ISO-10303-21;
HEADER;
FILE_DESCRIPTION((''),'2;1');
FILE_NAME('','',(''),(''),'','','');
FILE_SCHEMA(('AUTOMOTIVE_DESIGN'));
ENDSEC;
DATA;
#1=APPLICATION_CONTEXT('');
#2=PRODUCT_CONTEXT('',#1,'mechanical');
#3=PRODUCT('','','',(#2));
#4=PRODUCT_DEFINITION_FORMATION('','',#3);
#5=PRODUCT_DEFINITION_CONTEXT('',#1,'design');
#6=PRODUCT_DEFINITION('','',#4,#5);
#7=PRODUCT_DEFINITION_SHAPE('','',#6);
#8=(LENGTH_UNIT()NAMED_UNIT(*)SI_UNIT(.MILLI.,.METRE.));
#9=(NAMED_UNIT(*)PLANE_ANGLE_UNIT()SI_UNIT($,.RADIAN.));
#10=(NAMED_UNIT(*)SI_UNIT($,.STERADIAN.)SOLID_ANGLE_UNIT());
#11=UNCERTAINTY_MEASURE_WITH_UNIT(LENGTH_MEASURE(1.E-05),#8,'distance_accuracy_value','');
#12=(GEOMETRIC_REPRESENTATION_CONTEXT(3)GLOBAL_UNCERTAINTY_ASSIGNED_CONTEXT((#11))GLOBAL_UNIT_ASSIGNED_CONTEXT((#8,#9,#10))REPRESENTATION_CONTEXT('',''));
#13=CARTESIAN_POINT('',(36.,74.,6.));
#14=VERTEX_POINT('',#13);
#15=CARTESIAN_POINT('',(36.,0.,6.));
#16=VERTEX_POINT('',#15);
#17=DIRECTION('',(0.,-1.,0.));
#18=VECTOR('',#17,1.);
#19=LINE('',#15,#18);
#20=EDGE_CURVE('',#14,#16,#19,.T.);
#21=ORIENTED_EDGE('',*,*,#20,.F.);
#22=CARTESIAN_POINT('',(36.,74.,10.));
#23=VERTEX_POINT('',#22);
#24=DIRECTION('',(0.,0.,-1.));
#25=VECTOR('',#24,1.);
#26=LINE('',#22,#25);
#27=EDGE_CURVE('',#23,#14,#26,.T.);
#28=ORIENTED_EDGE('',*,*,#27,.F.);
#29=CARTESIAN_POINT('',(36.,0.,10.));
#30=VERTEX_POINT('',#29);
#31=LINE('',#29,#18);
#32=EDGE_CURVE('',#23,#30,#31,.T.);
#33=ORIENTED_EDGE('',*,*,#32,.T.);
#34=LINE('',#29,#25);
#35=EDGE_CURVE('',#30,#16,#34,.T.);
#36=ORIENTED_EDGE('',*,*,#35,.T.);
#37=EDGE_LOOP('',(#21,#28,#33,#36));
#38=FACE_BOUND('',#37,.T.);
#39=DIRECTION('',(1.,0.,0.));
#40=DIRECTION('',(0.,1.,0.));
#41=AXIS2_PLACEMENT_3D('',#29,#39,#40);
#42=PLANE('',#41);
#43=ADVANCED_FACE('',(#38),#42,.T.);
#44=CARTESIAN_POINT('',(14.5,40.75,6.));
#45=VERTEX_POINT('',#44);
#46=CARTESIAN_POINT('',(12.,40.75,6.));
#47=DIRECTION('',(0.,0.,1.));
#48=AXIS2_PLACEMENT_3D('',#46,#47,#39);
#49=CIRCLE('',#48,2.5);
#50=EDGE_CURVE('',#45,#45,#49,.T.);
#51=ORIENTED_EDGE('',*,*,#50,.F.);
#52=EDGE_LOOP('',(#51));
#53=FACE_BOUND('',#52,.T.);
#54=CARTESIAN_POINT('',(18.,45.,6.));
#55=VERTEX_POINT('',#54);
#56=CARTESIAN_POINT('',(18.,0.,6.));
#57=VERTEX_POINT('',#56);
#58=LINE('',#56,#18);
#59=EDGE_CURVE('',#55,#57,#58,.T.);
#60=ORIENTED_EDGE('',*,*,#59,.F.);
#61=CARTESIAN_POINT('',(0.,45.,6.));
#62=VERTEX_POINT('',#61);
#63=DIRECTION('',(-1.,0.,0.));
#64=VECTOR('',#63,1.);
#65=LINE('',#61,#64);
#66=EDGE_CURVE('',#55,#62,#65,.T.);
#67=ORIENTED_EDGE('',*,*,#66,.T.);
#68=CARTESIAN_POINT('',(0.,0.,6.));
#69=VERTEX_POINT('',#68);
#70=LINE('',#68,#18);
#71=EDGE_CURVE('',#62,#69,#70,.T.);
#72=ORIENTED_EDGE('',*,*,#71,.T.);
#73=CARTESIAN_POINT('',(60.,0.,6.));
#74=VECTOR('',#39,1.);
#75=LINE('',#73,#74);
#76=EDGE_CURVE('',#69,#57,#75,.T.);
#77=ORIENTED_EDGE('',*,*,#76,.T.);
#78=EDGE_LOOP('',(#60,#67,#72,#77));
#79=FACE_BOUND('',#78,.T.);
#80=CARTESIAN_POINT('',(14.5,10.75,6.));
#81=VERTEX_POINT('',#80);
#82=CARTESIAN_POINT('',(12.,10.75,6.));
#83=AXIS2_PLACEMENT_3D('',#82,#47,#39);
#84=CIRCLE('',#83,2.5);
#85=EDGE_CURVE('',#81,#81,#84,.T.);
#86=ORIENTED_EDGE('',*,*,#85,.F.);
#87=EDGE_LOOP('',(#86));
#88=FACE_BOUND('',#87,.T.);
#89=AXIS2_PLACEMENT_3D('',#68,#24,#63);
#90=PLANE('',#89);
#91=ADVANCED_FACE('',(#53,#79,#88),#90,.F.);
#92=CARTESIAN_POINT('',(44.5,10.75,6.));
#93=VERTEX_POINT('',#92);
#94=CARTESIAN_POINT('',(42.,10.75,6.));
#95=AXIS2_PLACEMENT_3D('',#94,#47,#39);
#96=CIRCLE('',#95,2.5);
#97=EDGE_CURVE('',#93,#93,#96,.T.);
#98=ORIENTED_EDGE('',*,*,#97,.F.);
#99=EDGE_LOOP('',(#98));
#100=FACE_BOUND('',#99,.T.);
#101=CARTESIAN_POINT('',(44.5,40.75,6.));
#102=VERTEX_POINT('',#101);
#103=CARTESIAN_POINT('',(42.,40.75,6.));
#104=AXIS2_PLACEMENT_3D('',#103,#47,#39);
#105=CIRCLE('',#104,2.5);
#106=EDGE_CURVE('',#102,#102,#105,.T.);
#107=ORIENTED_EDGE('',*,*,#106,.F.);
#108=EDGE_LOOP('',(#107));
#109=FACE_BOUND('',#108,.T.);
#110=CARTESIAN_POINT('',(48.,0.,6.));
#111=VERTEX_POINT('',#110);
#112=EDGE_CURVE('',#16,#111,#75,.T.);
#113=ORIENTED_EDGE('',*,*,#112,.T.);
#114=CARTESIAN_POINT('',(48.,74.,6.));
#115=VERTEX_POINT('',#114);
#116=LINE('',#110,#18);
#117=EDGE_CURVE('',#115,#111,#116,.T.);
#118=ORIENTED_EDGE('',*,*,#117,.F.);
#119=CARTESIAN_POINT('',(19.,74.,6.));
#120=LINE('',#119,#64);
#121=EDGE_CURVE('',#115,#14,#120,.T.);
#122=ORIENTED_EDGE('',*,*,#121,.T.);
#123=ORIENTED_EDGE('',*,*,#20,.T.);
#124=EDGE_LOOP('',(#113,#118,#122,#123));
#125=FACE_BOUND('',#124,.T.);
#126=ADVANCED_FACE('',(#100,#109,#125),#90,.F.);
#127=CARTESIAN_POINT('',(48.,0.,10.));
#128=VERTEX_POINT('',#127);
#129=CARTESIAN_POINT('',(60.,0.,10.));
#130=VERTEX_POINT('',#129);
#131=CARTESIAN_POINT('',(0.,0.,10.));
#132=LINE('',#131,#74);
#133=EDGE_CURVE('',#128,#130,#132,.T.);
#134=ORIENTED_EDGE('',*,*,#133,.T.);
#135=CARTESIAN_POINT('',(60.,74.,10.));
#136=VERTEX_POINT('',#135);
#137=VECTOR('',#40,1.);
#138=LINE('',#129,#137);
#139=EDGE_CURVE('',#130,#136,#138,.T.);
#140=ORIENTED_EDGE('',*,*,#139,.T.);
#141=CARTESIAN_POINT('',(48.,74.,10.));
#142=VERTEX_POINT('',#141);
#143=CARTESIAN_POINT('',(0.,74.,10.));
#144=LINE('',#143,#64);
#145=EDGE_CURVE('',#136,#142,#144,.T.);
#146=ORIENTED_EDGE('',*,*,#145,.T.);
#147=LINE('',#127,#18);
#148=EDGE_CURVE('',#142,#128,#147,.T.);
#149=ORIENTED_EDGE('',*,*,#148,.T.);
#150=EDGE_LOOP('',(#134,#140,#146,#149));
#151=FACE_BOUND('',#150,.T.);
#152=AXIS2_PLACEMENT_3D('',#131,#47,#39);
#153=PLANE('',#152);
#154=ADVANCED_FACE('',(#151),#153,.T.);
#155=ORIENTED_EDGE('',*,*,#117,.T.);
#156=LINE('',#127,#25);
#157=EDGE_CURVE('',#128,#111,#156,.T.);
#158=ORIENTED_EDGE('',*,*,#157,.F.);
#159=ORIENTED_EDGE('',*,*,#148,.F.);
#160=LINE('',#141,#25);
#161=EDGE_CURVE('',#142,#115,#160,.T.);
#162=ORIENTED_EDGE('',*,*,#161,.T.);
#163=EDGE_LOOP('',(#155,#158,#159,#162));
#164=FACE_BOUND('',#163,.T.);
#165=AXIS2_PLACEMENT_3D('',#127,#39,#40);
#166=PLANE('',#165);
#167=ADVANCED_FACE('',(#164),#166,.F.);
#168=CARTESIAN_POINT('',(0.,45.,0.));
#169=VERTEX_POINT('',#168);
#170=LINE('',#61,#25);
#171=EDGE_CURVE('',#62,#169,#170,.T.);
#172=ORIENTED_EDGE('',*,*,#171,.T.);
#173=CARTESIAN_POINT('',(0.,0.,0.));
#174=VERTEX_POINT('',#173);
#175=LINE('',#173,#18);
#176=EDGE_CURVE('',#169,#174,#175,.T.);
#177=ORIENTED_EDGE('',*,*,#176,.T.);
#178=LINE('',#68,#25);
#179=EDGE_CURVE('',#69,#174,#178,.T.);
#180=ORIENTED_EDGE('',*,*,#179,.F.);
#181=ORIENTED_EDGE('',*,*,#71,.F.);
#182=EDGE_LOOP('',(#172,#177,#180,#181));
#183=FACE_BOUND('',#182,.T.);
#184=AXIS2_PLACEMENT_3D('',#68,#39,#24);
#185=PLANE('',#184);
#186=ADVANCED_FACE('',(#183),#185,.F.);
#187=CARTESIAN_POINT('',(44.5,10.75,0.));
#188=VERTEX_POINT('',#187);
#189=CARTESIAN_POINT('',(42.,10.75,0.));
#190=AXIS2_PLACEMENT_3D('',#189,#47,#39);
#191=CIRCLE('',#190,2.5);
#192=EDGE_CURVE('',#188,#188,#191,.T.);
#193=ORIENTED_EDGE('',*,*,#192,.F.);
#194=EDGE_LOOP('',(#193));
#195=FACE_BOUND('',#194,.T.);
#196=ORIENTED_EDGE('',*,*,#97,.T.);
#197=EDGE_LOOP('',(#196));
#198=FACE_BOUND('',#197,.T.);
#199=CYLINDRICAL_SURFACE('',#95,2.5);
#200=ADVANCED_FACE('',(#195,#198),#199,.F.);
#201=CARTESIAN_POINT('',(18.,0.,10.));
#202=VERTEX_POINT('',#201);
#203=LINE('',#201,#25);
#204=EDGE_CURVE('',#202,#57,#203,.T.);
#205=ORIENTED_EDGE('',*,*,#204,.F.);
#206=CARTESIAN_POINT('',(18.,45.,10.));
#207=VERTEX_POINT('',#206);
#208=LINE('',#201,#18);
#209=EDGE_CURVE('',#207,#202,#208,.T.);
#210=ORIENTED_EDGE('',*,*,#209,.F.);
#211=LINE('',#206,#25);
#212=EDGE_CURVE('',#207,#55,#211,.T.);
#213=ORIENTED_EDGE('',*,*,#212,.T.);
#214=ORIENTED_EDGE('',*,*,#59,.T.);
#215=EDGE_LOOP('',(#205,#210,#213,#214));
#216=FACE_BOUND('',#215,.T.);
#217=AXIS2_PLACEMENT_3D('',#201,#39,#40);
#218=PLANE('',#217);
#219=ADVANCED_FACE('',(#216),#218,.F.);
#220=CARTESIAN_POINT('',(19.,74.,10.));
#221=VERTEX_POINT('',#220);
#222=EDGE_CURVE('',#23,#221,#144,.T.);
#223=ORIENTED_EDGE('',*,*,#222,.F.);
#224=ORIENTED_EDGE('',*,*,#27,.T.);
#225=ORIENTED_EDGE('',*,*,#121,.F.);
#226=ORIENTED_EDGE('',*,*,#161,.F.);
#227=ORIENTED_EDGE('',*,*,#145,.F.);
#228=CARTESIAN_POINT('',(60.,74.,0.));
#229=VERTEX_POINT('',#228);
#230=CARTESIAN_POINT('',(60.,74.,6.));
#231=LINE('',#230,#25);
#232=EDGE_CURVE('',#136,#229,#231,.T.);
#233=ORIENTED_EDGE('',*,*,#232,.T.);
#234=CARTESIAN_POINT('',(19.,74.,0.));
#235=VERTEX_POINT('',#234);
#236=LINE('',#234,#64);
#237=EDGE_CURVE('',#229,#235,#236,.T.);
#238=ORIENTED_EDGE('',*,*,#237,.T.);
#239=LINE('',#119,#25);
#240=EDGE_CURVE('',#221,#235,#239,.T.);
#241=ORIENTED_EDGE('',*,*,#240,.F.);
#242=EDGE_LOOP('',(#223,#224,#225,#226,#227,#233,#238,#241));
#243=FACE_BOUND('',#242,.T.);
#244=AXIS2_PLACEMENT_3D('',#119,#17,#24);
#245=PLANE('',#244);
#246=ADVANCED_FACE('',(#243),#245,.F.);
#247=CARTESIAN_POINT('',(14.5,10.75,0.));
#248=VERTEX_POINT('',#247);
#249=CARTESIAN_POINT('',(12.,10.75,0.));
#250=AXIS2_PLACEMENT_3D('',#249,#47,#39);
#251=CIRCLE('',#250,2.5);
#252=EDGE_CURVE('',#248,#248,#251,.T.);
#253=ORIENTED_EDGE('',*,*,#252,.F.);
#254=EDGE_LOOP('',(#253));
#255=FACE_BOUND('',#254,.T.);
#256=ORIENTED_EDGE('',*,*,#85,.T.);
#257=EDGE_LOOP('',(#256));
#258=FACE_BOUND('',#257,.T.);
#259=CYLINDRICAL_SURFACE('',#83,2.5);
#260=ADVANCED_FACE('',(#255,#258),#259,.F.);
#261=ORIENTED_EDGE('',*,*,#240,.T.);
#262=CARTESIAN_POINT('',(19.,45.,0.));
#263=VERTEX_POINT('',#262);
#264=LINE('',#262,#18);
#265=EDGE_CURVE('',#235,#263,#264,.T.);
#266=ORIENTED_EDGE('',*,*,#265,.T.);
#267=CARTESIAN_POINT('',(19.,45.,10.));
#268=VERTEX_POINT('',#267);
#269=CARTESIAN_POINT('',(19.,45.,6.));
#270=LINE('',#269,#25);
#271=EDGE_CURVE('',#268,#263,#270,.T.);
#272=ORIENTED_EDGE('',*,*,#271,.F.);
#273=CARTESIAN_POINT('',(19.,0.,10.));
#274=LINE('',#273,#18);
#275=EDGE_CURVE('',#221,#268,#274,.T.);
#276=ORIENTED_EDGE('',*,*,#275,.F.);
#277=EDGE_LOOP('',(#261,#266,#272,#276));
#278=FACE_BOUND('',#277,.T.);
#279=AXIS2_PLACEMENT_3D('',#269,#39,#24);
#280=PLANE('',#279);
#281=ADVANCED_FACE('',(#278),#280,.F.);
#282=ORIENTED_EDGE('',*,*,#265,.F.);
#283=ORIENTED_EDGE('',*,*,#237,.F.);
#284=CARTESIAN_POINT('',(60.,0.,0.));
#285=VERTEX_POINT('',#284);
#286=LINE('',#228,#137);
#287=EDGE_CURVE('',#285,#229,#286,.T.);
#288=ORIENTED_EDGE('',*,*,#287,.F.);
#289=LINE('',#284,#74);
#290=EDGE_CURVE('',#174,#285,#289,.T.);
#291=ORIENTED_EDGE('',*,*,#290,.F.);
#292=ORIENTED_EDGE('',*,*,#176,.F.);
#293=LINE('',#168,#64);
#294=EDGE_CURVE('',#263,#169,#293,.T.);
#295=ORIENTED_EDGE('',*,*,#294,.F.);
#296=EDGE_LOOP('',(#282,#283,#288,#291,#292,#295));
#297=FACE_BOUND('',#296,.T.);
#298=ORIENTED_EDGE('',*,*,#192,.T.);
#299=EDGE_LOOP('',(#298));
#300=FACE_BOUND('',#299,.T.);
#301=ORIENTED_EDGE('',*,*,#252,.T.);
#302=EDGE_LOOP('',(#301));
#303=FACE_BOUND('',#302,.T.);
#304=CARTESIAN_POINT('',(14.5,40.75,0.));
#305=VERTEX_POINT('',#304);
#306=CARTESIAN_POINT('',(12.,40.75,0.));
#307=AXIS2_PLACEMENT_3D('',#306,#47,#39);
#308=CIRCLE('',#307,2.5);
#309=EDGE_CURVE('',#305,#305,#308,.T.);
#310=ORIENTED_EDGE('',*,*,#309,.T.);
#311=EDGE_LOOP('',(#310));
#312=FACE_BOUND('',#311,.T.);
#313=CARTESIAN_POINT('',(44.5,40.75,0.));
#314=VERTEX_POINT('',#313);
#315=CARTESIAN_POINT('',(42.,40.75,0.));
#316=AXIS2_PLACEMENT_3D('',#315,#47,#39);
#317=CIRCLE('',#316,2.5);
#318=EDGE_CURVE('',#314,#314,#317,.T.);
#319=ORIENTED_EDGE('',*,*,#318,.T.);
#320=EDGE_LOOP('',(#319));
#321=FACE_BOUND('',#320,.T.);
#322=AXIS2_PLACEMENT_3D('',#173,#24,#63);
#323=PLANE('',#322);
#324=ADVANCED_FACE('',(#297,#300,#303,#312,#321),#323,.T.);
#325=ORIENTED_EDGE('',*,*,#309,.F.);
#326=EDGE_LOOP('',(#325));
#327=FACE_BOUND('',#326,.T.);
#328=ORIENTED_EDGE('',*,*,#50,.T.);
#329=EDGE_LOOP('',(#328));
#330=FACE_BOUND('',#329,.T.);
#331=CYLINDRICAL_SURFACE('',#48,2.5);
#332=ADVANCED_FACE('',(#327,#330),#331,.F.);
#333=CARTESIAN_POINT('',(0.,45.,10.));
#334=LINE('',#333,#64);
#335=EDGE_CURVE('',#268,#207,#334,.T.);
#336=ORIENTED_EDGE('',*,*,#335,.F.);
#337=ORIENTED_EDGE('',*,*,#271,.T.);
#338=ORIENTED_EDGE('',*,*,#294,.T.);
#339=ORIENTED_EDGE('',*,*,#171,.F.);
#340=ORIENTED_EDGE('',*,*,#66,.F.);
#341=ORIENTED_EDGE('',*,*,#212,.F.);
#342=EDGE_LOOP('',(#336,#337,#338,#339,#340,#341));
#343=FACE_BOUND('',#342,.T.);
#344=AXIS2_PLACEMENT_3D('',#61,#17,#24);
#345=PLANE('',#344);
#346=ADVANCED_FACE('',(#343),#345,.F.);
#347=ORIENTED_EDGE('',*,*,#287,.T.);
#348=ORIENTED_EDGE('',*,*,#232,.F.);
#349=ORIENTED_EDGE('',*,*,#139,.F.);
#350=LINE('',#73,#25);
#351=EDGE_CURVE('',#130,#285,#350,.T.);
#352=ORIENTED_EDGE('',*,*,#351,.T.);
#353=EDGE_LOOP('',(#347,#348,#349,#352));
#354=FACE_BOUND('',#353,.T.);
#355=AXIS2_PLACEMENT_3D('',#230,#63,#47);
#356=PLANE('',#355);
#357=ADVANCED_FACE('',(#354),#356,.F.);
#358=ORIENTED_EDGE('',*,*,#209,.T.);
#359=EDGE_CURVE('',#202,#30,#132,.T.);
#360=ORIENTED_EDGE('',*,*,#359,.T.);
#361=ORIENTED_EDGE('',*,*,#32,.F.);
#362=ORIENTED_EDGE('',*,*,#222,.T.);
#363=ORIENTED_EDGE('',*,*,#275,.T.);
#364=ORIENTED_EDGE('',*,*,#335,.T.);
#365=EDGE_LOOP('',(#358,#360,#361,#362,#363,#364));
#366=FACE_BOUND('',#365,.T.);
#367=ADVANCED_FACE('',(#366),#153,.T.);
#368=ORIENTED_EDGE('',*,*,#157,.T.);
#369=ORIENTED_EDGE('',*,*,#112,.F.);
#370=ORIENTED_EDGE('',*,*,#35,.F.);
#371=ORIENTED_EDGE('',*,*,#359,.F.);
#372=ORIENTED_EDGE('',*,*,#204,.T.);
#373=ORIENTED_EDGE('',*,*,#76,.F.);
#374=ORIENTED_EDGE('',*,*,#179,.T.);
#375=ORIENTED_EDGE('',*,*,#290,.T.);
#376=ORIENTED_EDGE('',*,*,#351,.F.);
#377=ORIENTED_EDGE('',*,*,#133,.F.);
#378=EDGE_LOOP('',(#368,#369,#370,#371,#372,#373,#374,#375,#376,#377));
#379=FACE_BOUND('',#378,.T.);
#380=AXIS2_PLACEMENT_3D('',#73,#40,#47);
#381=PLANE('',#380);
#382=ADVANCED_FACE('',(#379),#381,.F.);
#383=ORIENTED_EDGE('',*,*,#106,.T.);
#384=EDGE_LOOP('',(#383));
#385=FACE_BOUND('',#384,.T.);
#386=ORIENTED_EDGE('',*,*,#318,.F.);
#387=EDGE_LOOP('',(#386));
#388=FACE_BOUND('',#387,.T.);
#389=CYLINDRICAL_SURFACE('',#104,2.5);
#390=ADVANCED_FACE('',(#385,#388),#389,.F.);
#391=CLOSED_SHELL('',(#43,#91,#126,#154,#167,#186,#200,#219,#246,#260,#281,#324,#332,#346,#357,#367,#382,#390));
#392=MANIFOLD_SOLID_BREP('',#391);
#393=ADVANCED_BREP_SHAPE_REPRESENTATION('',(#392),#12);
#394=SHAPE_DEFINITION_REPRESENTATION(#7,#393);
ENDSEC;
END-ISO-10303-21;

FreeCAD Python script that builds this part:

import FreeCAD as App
import Part
import Sketcher
Q = App.Units.Quantity

doc = App.newDocument("Part")
body = doc.addObject("PartDesign::Body", "Body")

sketch1 = doc.addObject("Sketcher::SketchObject", "Sketch")
body.addObject(sketch1)
sketch1.AttachmentSupport = (doc.XY_Plane, [""])
sketch1.MapMode = "FlatFace"
sketch1.addGeometry([
    Part.LineSegment(App.Vector(0, 45, 0), App.Vector(0, 0, 0)),
    Part.LineSegment(App.Vector(0, 0, 0), App.Vector(60, 0, 0)),
    Part.LineSegment(App.Vector(60, 0, 0), App.Vector(60, 74, 0)),
    Part.LineSegment(App.Vector(60, 74, 0), App.Vector(19, 74, 0)),
    Part.LineSegment(App.Vector(19, 74, 0), App.Vector(19, 45, 0)),
    Part.LineSegment(App.Vector(19, 45, 0), App.Vector(0, 45, 0)),
], False)
sketch1.addConstraint([
    Sketcher.Constraint("Coincident", 0, 2, 1, 1),
    Sketcher.Constraint("Coincident", 1, 2, 2, 1),
    Sketcher.Constraint("Coincident", 2, 2, 3, 1),
    Sketcher.Constraint("Coincident", 3, 2, 4, 1),
    Sketcher.Constraint("Coincident", 4, 2, 5, 1),
    Sketcher.Constraint("Coincident", 5, 2, 0, 1),
    Sketcher.Constraint("Vertical", 0),
    Sketcher.Constraint("Horizontal", 1),
    Sketcher.Constraint("Vertical", 2),
    Sketcher.Constraint("Horizontal", 3),
    Sketcher.Constraint("Vertical", 4),
    Sketcher.Constraint("Horizontal", 5),
    Sketcher.Constraint("Coincident", 0, 2, -1, 1),
    Sketcher.Constraint("DistanceX", 1, 1, 1, 2, Q("60 mm")),
    Sketcher.Constraint("DistanceX", 3, 2, 3, 1, Q("41 mm")),
    Sketcher.Constraint("DistanceY", 0, 2, 0, 1, Q("45 mm")),
    Sketcher.Constraint("DistanceY", 2, 1, 2, 2, Q("74 mm")),
])
pad1 = doc.addObject("PartDesign::Pad", "Pad")
body.addObject(pad1)
pad1.Profile = sketch1
pad1.Length = 6

sketch2 = doc.addObject("Sketcher::SketchObject", "Sketch001")
body.addObject(sketch2)
sketch2.AttachmentSupport = (doc.XY_Plane, [""])
sketch2.MapMode = "FlatFace"
sketch2.AttachmentOffset = App.Placement(App.Vector(0, 0, 6), App.Rotation())
sketch2.addGeometry([
    Part.LineSegment(App.Vector(36, 0, 0), App.Vector(36, 74, 0)),
    Part.LineSegment(App.Vector(36, 74, 0), App.Vector(19, 74, 0)),
    Part.LineSegment(App.Vector(19, 74, 0), App.Vector(19, 45, 0)),
    Part.LineSegment(App.Vector(19, 45, 0), App.Vector(18, 45, 0)),
    Part.LineSegment(App.Vector(18, 45, 0), App.Vector(18, 0, 0)),
    Part.LineSegment(App.Vector(18, 0, 0), App.Vector(36, 0, 0)),
    Part.LineSegment(App.Vector(48, 74, 0), App.Vector(48, 0, 0)),
    Part.LineSegment(App.Vector(48, 0, 0), App.Vector(60, 0, 0)),
    Part.LineSegment(App.Vector(60, 0, 0), App.Vector(60, 74, 0)),
    Part.LineSegment(App.Vector(60, 74, 0), App.Vector(48, 74, 0)),
], False)
sketch2.addConstraint([
    Sketcher.Constraint("Coincident", 0, 2, 1, 1),
    Sketcher.Constraint("Coincident", 1, 2, 2, 1),
    Sketcher.Constraint("Coincident", 2, 2, 3, 1),
    Sketcher.Constraint("Coincident", 3, 2, 4, 1),
    Sketcher.Constraint("Coincident", 4, 2, 5, 1),
    Sketcher.Constraint("Coincident", 5, 2, 0, 1),
    Sketcher.Constraint("Coincident", 6, 2, 7, 1),
    Sketcher.Constraint("Coincident", 7, 2, 8, 1),
    Sketcher.Constraint("Coincident", 8, 2, 9, 1),
    Sketcher.Constraint("Coincident", 9, 2, 6, 1),
    Sketcher.Constraint("Vertical", 0),
    Sketcher.Constraint("Horizontal", 1),
    Sketcher.Constraint("Vertical", 2),
    Sketcher.Constraint("Horizontal", 3),
    Sketcher.Constraint("Vertical", 4),
    Sketcher.Constraint("Horizontal", 5),
    Sketcher.Constraint("Vertical", 6),
    Sketcher.Constraint("Horizontal", 7),
    Sketcher.Constraint("Vertical", 8),
    Sketcher.Constraint("Horizontal", 9),
    Sketcher.Constraint("PointOnObject", 4, 2, -1),
    Sketcher.Constraint("PointOnObject", 6, 2, -1),
    Sketcher.Constraint("Horizontal", 1, 2, 8, 2),
    Sketcher.Constraint("DistanceX", 1, 2, 1, 1, Q("17 mm")),
    Sketcher.Constraint("DistanceX", 3, 2, 3, 1, Q("1 mm")),
    Sketcher.Constraint("DistanceX", 7, 1, 7, 2, Q("12 mm")),
    Sketcher.Constraint("DistanceY", 0, 1, 0, 2, Q("74 mm")),
    Sketcher.Constraint("DistanceY", 2, 2, 2, 1, Q("29 mm")),
    Sketcher.Constraint("DistanceX", -1, 1, 0, 2, Q("36 mm")),
    Sketcher.Constraint("DistanceX", -1, 1, 6, 2, Q("48 mm")),
])
pad2 = doc.addObject("PartDesign::Pad", "Pad001")
body.addObject(pad2)
pad2.Profile = sketch2
pad2.Length = 4

sketch3 = doc.addObject("Sketcher::SketchObject", "Sketch002")
body.addObject(sketch3)
sketch3.AttachmentSupport = (doc.XY_Plane, [""])
sketch3.MapMode = "FlatFace"
sketch3.AttachmentOffset = App.Placement(App.Vector(0, 0, 6), App.Rotation())
sketch3.addGeometry([
    Part.Circle(App.Vector(42, 40.75, 0), App.Vector(0, 0, 1), 2.5),
    Part.Circle(App.Vector(42, 10.75, 0), App.Vector(0, 0, 1), 2.5),
], False)
sketch3.addConstraint([
    Sketcher.Constraint("Equal", 0, 1),
    Sketcher.Constraint("Vertical", 0, 3, 1, 3),
    Sketcher.Constraint("Diameter", 0, Q("5 mm")),
    Sketcher.Constraint("DistanceX", -1, 1, 0, 3, Q("42 mm")),
    Sketcher.Constraint("DistanceY", 1, 3, 0, 3, Q("30 mm")),
    Sketcher.Constraint("DistanceY", -1, 1, 0, 3, Q("40.75 mm")),
])
doc.recompute()
hole = doc.addObject("PartDesign::Hole", "Hole")
body.addObject(hole)
hole.Profile = sketch3
hole.ThreadType = "None"
hole.Diameter = 5
hole.DepthType = "ThroughAll"

sketch4 = doc.addObject("Sketcher::SketchObject", "Sketch003")
body.addObject(sketch4)
sketch4.AttachmentSupport = (doc.XY_Plane, [""])
sketch4.MapMode = "FlatFace"
sketch4.AttachmentOffset = App.Placement(App.Vector(0, 0, 6), App.Rotation())
sketch4.addGeometry([
    Part.Circle(App.Vector(12, 10.75, 0), App.Vector(0, 0, 1), 2.5),
    Part.Circle(App.Vector(12, 40.75, 0), App.Vector(0, 0, 1), 2.5),
], False)
sketch4.addConstraint([
    Sketcher.Constraint("Equal", 0, 1),
    Sketcher.Constraint("Vertical", 0, 3, 1, 3),
    Sketcher.Constraint("Diameter", 0, Q("5 mm")),
    Sketcher.Constraint("DistanceX", -1, 1, 0, 3, Q("12 mm")),
    Sketcher.Constraint("DistanceY", 0, 3, 1, 3, Q("30 mm")),
    Sketcher.Constraint("DistanceY", -1, 1, 0, 3, Q("10.75 mm")),
])
doc.recompute()
hole2 = doc.addObject("PartDesign::Hole", "Hole001")
body.addObject(hole2)
hole2.Profile = sketch4
hole2.ThreadType = "None"
hole2.Diameter = 5
hole2.DepthType = "ThroughAll"

doc.recompute()
